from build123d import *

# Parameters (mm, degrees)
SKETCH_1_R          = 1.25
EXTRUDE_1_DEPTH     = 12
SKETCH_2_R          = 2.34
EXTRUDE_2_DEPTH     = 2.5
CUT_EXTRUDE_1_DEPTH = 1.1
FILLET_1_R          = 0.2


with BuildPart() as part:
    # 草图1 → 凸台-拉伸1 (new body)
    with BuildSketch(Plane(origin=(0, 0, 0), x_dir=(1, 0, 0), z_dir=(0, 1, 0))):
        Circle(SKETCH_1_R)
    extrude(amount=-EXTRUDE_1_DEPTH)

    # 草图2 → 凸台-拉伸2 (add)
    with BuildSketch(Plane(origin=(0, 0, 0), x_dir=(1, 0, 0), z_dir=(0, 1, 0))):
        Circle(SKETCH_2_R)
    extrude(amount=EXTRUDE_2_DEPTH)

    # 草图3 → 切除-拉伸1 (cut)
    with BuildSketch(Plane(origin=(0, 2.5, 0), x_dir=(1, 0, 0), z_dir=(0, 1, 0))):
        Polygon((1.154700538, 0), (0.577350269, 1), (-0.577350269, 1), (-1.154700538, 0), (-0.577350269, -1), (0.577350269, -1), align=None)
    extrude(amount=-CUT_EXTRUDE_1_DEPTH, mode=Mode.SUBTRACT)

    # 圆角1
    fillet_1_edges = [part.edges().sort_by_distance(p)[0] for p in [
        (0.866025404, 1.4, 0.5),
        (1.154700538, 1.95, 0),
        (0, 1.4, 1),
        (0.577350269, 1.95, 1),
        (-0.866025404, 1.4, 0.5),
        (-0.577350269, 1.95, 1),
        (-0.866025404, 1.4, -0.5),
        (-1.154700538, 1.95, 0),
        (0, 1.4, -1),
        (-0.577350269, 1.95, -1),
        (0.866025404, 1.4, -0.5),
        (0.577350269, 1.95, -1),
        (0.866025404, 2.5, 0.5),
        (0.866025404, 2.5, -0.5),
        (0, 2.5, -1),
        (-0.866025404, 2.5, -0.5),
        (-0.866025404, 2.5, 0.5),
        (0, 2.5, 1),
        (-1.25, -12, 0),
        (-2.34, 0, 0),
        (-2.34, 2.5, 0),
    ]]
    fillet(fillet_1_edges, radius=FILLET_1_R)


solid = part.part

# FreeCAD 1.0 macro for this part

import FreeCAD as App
import Part
import Sketcher

V = App.Vector
Q = App.Units.Quantity


def edges_at(feature, points):
    """Names of the edges that pass closest to the given points."""
    edges = feature.Shape.Edges
    near = lambda p: min(range(len(edges)), key=lambda i: edges[i].distToShape(Part.Vertex(*p))[0])
    return sorted({f"Edge{near(p) + 1}" for p in points})


def add_polygon(sketch, points):
    """Adds a closed chain of lines whose ends are joined by coincident constraints."""
    first, n = sketch.GeometryCount, len(points)
    for a, b in zip(points, points[1:] + points[:1]):
        sketch.addGeometry(Part.LineSegment(App.Vector(*a, 0), App.Vector(*b, 0)), False)
    for i in range(n):
        sketch.addConstraint(Sketcher.Constraint("Coincident", first + i, 2, first + (i + 1) % n, 1))

doc = App.newDocument("Part")
params = doc.addObject("Spreadsheet::Sheet", "Params")
for row, (alias, value) in enumerate([
    ("sketch1_diameter", "2.5 mm"),
    ("pad1_length", "12 mm"),
    ("sketch2_diameter", "4.68 mm"),
    ("pad2_length", "2.5 mm"),
    ("pocket1_length", "1.1 mm"),
    ("fillet_radius", "0.2 mm"),
], start=1):
    params.set(f"A{row}", alias)
    params.set(f"B{row}", "=" + value)
    params.setAlias(f"B{row}", alias)

body = doc.addObject("PartDesign::Body", "Body")

# Sketch on XZ plane
sketch1 = body.newObject("Sketcher::SketchObject", "Sketch")
sketch1.AttachmentSupport = (doc.getObject("XZ_Plane"), [""])
sketch1.MapMode = "FlatFace"
sketch1.addGeometry(Part.Circle(V(0, 0, 0), V(0, 0, 1), 1.25), False)
sketch1.addConstraint(Sketcher.Constraint("Coincident", 0, 3, -1, 1))
sketch1.addConstraint(Sketcher.Constraint("Diameter", 0, Q("2.5 mm")))
sketch1.setExpression("Constraints[1]", "Params.sketch1_diameter")
pad1 = body.newObject("PartDesign::Pad", "Pad")
pad1.Profile = sketch1
pad1.setExpression("Length", "Params.pad1_length")

# Sketch on XZ plane
sketch2 = body.newObject("Sketcher::SketchObject", "Sketch001")
sketch2.AttachmentSupport = (doc.getObject("XZ_Plane"), [""])
sketch2.MapMode = "FlatFace"
sketch2.addGeometry(Part.Circle(V(0, 0, 0), V(0, 0, 1), 2.34), False)
sketch2.addConstraint(Sketcher.Constraint("Coincident", 0, 3, -1, 1))
sketch2.addConstraint(Sketcher.Constraint("Diameter", 0, Q("4.68 mm")))
sketch2.setExpression("Constraints[1]", "Params.sketch2_diameter")
pad2 = body.newObject("PartDesign::Pad", "Pad001")
pad2.Profile = sketch2
pad2.setExpression("Length", "Params.pad2_length")
pad2.Reversed = True

# Sketch on XZ plane
sketch3 = body.newObject("Sketcher::SketchObject", "Sketch002")
sketch3.AttachmentSupport = (doc.getObject("XZ_Plane"), [""])
sketch3.MapMode = "FlatFace"
sketch3.AttachmentOffset = App.Placement(V(0, 0, -2.5), App.Rotation())
add_polygon(sketch3, [(1.154701, 0), (0.57735, -1), (-0.57735, -1), (-1.154701, 0), (-0.57735, 1), (0.57735, 1)])  # lines 0-5
sketch3.addConstraint(Sketcher.Constraint("Horizontal", 1))
sketch3.addConstraint(Sketcher.Constraint("Horizontal", 4))
sketch3.addConstraint(Sketcher.Constraint("Symmetric", 0, 2, 3, 2, -1, 1))
sketch3.addConstraint(Sketcher.Constraint("Symmetric", 2, 2, 5, 2, -1, 1))
sketch3.addConstraint(Sketcher.Constraint("PointOnObject", 2, 2, -1))
sketch3.addConstraint(Sketcher.Constraint("Parallel", 2, 5))
sketch3.addConstraint(Sketcher.Constraint("Vertical", 1, 2, 3, 2))
sketch3.addConstraint(Sketcher.Constraint("Angle", 0, Q("-120 deg")))
sketch3.addConstraint(Sketcher.Constraint("DistanceY", 0, 2, -1, 1, Q("1 mm")))
sketch3.addConstraint(Sketcher.Constraint("DistanceX", 1, 2, 1, 1, Q("1.154701 mm")))
pocket1 = body.newObject("PartDesign::Pocket", "Pocket")
pocket1.Profile = sketch3
pocket1.setExpression("Length", "Params.pocket1_length")
pocket1.Reversed = True
doc.recompute()

fillet = body.newObject("PartDesign::Fillet", "Fillet")
fillet.Base = (pocket1, edges_at(pocket1, [
    (0.866, 1.4, 0.5),
    (1.155, 1.95, 0),
    (0, 1.4, 1),
    (0.577, 1.95, 1),
    (-0.866, 1.4, 0.5),
    (-0.577, 1.95, 1),
    (-0.866, 1.4, -0.5),
    (-1.155, 1.95, 0),
    (0, 1.4, -1),
    (-0.577, 1.95, -1),
    (0.866, 1.4, -0.5),
    (0.577, 1.95, -1),
    (0.866, 2.5, 0.5),
    (0.866, 2.5, -0.5),
    (0, 2.5, -1),
    (-0.866, 2.5, -0.5),
    (-0.866, 2.5, 0.5),
    (0, 2.5, 1),
    (-1.25, -12, 0),
    (-2.34, 0, 0),
    (-2.34, 2.5, 0),
]))
fillet.setExpression("Radius", "Params.fillet_radius")

doc.recompute()
